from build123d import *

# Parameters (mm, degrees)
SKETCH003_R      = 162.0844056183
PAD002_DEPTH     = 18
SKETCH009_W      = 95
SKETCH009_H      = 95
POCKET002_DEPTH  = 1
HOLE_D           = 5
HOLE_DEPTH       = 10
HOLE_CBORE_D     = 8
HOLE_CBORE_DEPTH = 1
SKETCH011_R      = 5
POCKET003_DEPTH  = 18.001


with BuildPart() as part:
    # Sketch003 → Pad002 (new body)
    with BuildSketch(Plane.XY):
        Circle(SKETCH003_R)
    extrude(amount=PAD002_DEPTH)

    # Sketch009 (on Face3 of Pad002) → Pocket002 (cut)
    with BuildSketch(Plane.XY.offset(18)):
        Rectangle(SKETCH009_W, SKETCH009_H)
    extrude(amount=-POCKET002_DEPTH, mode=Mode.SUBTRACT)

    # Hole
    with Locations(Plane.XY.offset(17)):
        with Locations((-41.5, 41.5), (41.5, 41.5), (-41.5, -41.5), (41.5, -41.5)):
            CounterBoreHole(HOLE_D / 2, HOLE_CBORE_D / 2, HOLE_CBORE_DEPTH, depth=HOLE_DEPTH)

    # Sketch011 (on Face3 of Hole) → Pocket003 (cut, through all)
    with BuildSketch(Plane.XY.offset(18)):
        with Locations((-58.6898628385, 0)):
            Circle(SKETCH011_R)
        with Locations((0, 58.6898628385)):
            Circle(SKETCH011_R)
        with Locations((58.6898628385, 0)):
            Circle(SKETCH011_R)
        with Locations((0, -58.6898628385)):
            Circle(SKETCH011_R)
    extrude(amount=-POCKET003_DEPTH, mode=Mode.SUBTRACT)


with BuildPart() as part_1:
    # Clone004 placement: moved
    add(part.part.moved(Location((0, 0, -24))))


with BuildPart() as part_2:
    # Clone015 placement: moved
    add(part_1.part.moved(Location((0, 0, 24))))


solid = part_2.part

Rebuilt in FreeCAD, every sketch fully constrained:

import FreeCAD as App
import Part
import Sketcher

doc = App.newDocument("Part")
body = doc.addObject("PartDesign::Body", "Body")

sketch1 = body.newObject("Sketcher::SketchObject", "Sketch")
sketch1.AttachmentSupport = (doc.getObject("XY_Plane"), [""])
sketch1.MapMode = "FlatFace"
sketch1.addGeometry(Part.Circle(App.Vector(0, 0, 0), App.Vector(0, 0, 1), 162), False)
sketch1.addConstraint(Sketcher.Constraint("Coincident", 0, 3, -1, 1))
sketch1.addConstraint(Sketcher.Constraint("Diameter", 0, 324.168811))
pad1 = body.newObject("PartDesign::Pad", "Pad")
pad1.Profile = sketch1
pad1.Length = 18

sketch2 = body.newObject("Sketcher::SketchObject", "Sketch001")
sketch2.AttachmentSupport = (doc.getObject("XY_Plane"), [""])
sketch2.MapMode = "FlatFace"
sketch2.AttachmentOffset = App.Placement(App.Vector(0, 0, 18), App.Rotation())
sketch2.addGeometry(Part.LineSegment(App.Vector(-48, 48, 0), App.Vector(-48, -48, 0)), False)
sketch2.addGeometry(Part.LineSegment(App.Vector(-48, -48, 0), App.Vector(48, -48, 0)), False)
sketch2.addGeometry(Part.LineSegment(App.Vector(48, -48, 0), App.Vector(48, 48, 0)), False)
sketch2.addGeometry(Part.LineSegment(App.Vector(48, 48, 0), App.Vector(-48, 48, 0)), False)
sketch2.addConstraint(Sketcher.Constraint("Coincident", 0, 2, 1, 1))
sketch2.addConstraint(Sketcher.Constraint("Coincident", 1, 2, 2, 1))
sketch2.addConstraint(Sketcher.Constraint("Coincident", 2, 2, 3, 1))
sketch2.addConstraint(Sketcher.Constraint("Coincident", 3, 2, 0, 1))
sketch2.addConstraint(Sketcher.Constraint("Vertical", 0))
sketch2.addConstraint(Sketcher.Constraint("Horizontal", 1))
sketch2.addConstraint(Sketcher.Constraint("Vertical", 2))
sketch2.addConstraint(Sketcher.Constraint("Horizontal", 3))
sketch2.addConstraint(Sketcher.Constraint("Symmetric", 0, 2, 2, 2, -1, 1))
sketch2.addConstraint(Sketcher.Constraint("Equal", 3, 0))
sketch2.addConstraint(Sketcher.Constraint("DistanceX", 1, 1, 1, 2, 95.0))
pocket1 = body.newObject("PartDesign::Pocket", "Pocket")
pocket1.Profile = sketch2
pocket1.Length = 1

sketch3 = body.newObject("Sketcher::SketchObject", "Sketch002")
sketch3.AttachmentSupport = (doc.getObject("XY_Plane"), [""])
sketch3.MapMode = "FlatFace"
sketch3.AttachmentOffset = App.Placement(App.Vector(0, 0, 17), App.Rotation())
sketch3.addGeometry(Part.Circle(App.Vector(-41.5, 41.5, 0), App.Vector(0, 0, 1), 2.5), False)
sketch3.addGeometry(Part.Circle(App.Vector(41.5, 41.5, 0), App.Vector(0, 0, 1), 2.5), False)
sketch3.addGeometry(Part.Circle(App.Vector(-41.5, -41.5, 0), App.Vector(0, 0, 1), 2.5), False)
sketch3.addGeometry(Part.Circle(App.Vector(41.5, -41.5, 0), App.Vector(0, 0, 1), 2.5), False)
sketch3.addConstraint(Sketcher.Constraint("Equal", 0, 1))
sketch3.addConstraint(Sketcher.Constraint("Equal", 1, 2))
sketch3.addConstraint(Sketcher.Constraint("Equal", 2, 3))
sketch3.addConstraint(Sketcher.Constraint("Symmetric", 1, 3, 2, 3, -1, 1))
sketch3.addConstraint(Sketcher.Constraint("Symmetric", 0, 3, 3, 3, -1, 1))
sketch3.addConstraint(Sketcher.Constraint("Symmetric", 0, 3, 1, 3, -2))
sketch3.addConstraint(Sketcher.Constraint("Diameter", 0, 5.0))
sketch3.addConstraint(Sketcher.Constraint("DistanceX", 0, 3, 1, 3, 83.0))
sketch3.addConstraint(Sketcher.Constraint("DistanceY", 2, 3, 0, 3, 83.0))
doc.recompute()
hole = body.newObject("PartDesign::Hole", "Hole")
hole.Profile = sketch3
hole.ThreadType = "None"
hole.Diameter = 5
hole.DepthType = "Dimension"
hole.Depth = 10
hole.DrillPoint = "Flat"
hole.HoleCutType = "Counterbore"
hole.HoleCutDiameter = 8
hole.HoleCutDepth = 1

sketch4 = body.newObject("Sketcher::SketchObject", "Sketch003")
sketch4.AttachmentSupport = (doc.getObject("XY_Plane"), [""])
sketch4.MapMode = "FlatFace"
sketch4.AttachmentOffset = App.Placement(App.Vector(0, 0, 18), App.Rotation())
sketch4.addGeometry(Part.Circle(App.Vector(-59, 0, 0), App.Vector(0, 0, 1), 5), False)
sketch4.addGeometry(Part.Circle(App.Vector(0, 59, 0), App.Vector(0, 0, 1), 5), False)
sketch4.addGeometry(Part.Circle(App.Vector(59, 0, 0), App.Vector(0, 0, 1), 5), False)
sketch4.addGeometry(Part.Circle(App.Vector(0, -59, 0), App.Vector(0, 0, 1), 5), False)
sketch4.addConstraint(Sketcher.Constraint("Equal", 0, 1))
sketch4.addConstraint(Sketcher.Constraint("Equal", 1, 2))
sketch4.addConstraint(Sketcher.Constraint("Equal", 2, 3))
sketch4.addConstraint(Sketcher.Constraint("Symmetric", 0, 3, 2, 3, -1, 1))
sketch4.addConstraint(Sketcher.Constraint("Symmetric", 1, 3, 3, 3, -1, 1))
sketch4.addConstraint(Sketcher.Constraint("PointOnObject", 0, 3, -1))
sketch4.addConstraint(Sketcher.Constraint("PointOnObject", 1, 3, -2))
sketch4.addConstraint(Sketcher.Constraint("Diameter", 0, 10.0))
sketch4.addConstraint(Sketcher.Constraint("DistanceX", 0, 3, -1, 1, 58.689863))
sketch4.addConstraint(Sketcher.Constraint("DistanceY", -1, 1, 1, 3, 58.689863))
pocket2 = body.newObject("PartDesign::Pocket", "Pocket001")
pocket2.Profile = sketch4
pocket2.Type = "ThroughAll"
body2 = doc.addObject("PartDesign::Body", "Body001")
doc.recompute()

body.Placement = App.Placement(App.Vector(0, 0, -24), App.Rotation(App.Vector(0, 0, 1), 0))
boolean = body2.newObject("PartDesign::Boolean", "Boolean")
boolean.Type = "Fuse"
boolean.addObjects([body])
body3 = doc.addObject("PartDesign::Body", "Body002")
doc.recompute()

body2.Placement = App.Placement(App.Vector(0, 0, 24), App.Rotation(App.Vector(0, 0, 1), 0))
boolean2 = body3.newObject("PartDesign::Boolean", "Boolean001")
boolean2.Type = "Fuse"
boolean2.addObjects([body2])

doc.recompute()
